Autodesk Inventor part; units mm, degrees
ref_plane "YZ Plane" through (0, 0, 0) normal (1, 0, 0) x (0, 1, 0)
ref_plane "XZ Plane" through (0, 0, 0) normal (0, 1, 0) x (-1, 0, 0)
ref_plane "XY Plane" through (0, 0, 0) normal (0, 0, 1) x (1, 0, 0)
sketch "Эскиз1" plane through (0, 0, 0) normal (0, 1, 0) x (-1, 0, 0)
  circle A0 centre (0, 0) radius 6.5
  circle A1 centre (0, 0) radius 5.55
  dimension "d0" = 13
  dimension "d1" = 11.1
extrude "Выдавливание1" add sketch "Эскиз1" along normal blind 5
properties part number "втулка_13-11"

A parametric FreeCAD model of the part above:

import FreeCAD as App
import Part
import Sketcher

doc = App.newDocument("Part")
body = doc.addObject("PartDesign::Body", "Body")

# Sketch on XZ plane
sketch1 = doc.addObject("Sketcher::SketchObject", "Sketch")
body.addObject(sketch1)
sketch1.AttachmentSupport = (doc.XZ_Plane, [""])
sketch1.MapMode = "FlatFace"
sketch1.addGeometry([
    Part.Circle(App.Vector(0, 0, 0), App.Vector(0, 0, 1), 6),
    Part.Circle(App.Vector(0, 0, 0), App.Vector(0, 0, 1), 6),
], False)
sketch1.addConstraint([
    Sketcher.Constraint("Coincident", 0, 3, -1, 1),
    Sketcher.Constraint("Coincident", 1, 3, -1, 1),
    Sketcher.Constraint("Diameter", 0, 13.0),
    Sketcher.Constraint("Diameter", 1, 11.1),
])
pad1 = doc.addObject("PartDesign::Pad", "Pad")
body.addObject(pad1)
pad1.Profile = sketch1
pad1.Length = 5
pad1.Reversed = True

doc.recompute()
